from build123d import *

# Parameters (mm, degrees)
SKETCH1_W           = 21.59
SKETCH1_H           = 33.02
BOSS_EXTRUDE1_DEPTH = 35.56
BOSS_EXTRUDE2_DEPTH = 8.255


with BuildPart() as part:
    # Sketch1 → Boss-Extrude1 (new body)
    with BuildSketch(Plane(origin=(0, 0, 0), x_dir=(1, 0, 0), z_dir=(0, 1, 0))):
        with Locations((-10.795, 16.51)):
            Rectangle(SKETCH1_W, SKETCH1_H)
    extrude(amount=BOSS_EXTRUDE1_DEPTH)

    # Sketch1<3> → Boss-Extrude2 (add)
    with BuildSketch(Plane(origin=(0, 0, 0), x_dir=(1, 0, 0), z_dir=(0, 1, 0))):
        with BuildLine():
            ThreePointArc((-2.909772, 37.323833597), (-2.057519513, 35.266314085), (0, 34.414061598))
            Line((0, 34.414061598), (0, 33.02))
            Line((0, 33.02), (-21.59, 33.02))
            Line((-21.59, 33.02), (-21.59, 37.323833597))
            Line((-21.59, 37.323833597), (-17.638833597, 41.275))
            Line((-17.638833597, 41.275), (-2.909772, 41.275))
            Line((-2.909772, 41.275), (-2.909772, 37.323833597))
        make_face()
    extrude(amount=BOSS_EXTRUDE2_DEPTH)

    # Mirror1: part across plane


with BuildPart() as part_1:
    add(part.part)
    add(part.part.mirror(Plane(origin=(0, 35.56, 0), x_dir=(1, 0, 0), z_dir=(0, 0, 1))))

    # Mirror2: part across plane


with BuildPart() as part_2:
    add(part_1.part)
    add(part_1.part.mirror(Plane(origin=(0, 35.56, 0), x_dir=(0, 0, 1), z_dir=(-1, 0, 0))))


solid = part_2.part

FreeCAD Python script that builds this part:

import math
import FreeCAD as App
import Part
import Sketcher
from FreeCAD import Vector
Q = App.Units.Quantity

doc = App.newDocument("Part")
params = doc.addObject("Spreadsheet::Sheet", "Params")
for row, (alias, value) in enumerate([
    ("sketch1_height", "1.3 in"),
    ("sketch1_width", "0.85 in"),
    ("pad1_length", "1.4 in"),
    ("sketch2_width", "0.85 in"),
    ("pad2_length", "0.325 in"),
], start=1):
    params.set(f"A{row}", alias)
    params.set(f"B{row}", "=" + value)
    params.setAlias(f"B{row}", alias)

body = doc.addObject("PartDesign::Body", "Body")

# Sketch on XZ plane
sketch1 = body.newObject("Sketcher::SketchObject", "Sketch")
sketch1.AttachmentSupport = (doc.getObject("XZ_Plane"), [""])
sketch1.MapMode = "FlatFace"
sketch1.addGeometry([
    Part.LineSegment(Vector(-22, -33, 0), Vector(-22, 0, 0)),
    Part.LineSegment(Vector(-22, 0, 0), Vector(0, 0, 0)),
    Part.LineSegment(Vector(0, 0, 0), Vector(0, -33, 0)),
    Part.LineSegment(Vector(0, -33, 0), Vector(-22, -33, 0)),
], False)
sketch1.addConstraint([
    Sketcher.Constraint("Coincident", 0, 2, 1, 1),
    Sketcher.Constraint("Coincident", 1, 2, 2, 1),
    Sketcher.Constraint("Coincident", 2, 2, 3, 1),
    Sketcher.Constraint("Coincident", 3, 2, 0, 1),
    Sketcher.Constraint("Vertical", 0),
    Sketcher.Constraint("Horizontal", 1),
    Sketcher.Constraint("Vertical", 2),
    Sketcher.Constraint("Horizontal", 3),
    Sketcher.Constraint("Coincident", 1, 2, -1, 1),
    Sketcher.Constraint("DistanceY", 0, 1, 0, 2, Q("1.3 in")),
    Sketcher.Constraint("DistanceX", 1, 1, 1, 2, Q("0.85 in")),
])
sketch1.setExpression("Constraints[9]", "Params.sketch1_height")
sketch1.setExpression("Constraints[10]", "Params.sketch1_width")
pad1 = body.newObject("PartDesign::Pad", "Pad")
pad1.Profile = sketch1
pad1.setExpression("Length", "Params.pad1_length")
pad1.Reversed = True

# Sketch on XZ plane
sketch2 = body.newObject("Sketcher::SketchObject", "Sketch001")
sketch2.AttachmentSupport = (doc.getObject("XZ_Plane"), [""])
sketch2.MapMode = "FlatFace"
sketch2.addGeometry([
    Part.ArcOfCircle(Part.Circle(Vector(0, -37.3, 0), Vector(0, 0, 1), 2.9), math.radians(90), math.radians(180)),  # 0
    Part.LineSegment(Vector(-2.9, -37.3, 0), Vector(-2.9, -41.3, 0)),  # 1
    Part.LineSegment(Vector(-2.9, -41.3, 0), Vector(-17.6, -41.3, 0)),  # 2
    Part.LineSegment(Vector(-17.6, -41.3, 0), Vector(-21.6, -37.3, 0)),  # 3
    Part.LineSegment(Vector(-21.6, -37.3, 0), Vector(-21.6, -33, 0)),  # 4
    Part.LineSegment(Vector(-21.6, -33, 0), Vector(0, -33, 0)),  # 5
    Part.LineSegment(Vector(0, -33, 0), Vector(0, -34.4, 0)),  # 6
], False)
sketch2.addConstraint([
    Sketcher.Constraint("Tangent", 0, 2, 1, 1),
    Sketcher.Constraint("Coincident", 1, 2, 2, 1),
    Sketcher.Constraint("Coincident", 2, 2, 3, 1),
    Sketcher.Constraint("Coincident", 3, 2, 4, 1),
    Sketcher.Constraint("Coincident", 4, 2, 5, 1),
    Sketcher.Constraint("Coincident", 5, 2, 6, 1),
    Sketcher.Constraint("Coincident", 6, 2, 0, 1),
    Sketcher.Constraint("Vertical", 1),
    Sketcher.Constraint("Horizontal", 2),
    Sketcher.Constraint("Vertical", 4),
    Sketcher.Constraint("Horizontal", 5),
    Sketcher.Constraint("Vertical", 6),
    Sketcher.Constraint("PointOnObject", 0, 3, -2),
    Sketcher.Constraint("PointOnObject", 5, 2, -2),
    Sketcher.Constraint("Horizontal", 0, 2, 3, 2),
    Sketcher.Constraint("Angle", 3, Q("135 deg")),
    Sketcher.Constraint("DistanceX", 5, 1, 5, 2, Q("0.85 in")),
    Sketcher.Constraint("DistanceY", 4, 2, -1, 1, Q("1.3 in")),
    Sketcher.Constraint("DistanceY", 1, 2, -1, 1, Q("1.625 in")),
    Sketcher.Constraint("Radius", 0, 2.909772),
    Sketcher.Constraint("DistanceX", 2, 2, 2, 1, 14.729062),
])
sketch2.setExpression("Constraints[16]", "Params.sketch2_width")
pad2 = body.newObject("PartDesign::Pad", "Pad001")
pad2.Profile = sketch2
pad2.setExpression("Length", "Params.pad2_length")
pad2.Reversed = True
body2 = doc.addObject("PartDesign::Body", "Body001")
doc.recompute()

body2.BaseFeature = body
doc.recompute()

mirroring = doc.addObject("Part::Mirroring", "Mirroring")
mirroring.Source = body
mirroring.Base = Vector(0, 35.56, 0)
mirroring.Normal = Vector(0, 0, 1)
body3 = doc.addObject("PartDesign::Body", "Body002")
body3.BaseFeature = mirroring
boolean = body2.newObject("PartDesign::Boolean", "Boolean")
boolean.Type = "Fuse"
boolean.addObjects([body3])
doc.recompute()
body4 = doc.addObject("PartDesign::Body", "Body003")
doc.recompute()

body4.BaseFeature = body2
doc.recompute()

mirroring2 = doc.addObject("Part::Mirroring", "Mirroring001")
mirroring2.Source = body2
mirroring2.Base = Vector(0, 35.56, 0)
mirroring2.Normal = Vector(-1, 0, 0)
body5 = doc.addObject("PartDesign::Body", "Body004")
body5.BaseFeature = mirroring2
boolean2 = body4.newObject("PartDesign::Boolean", "Boolean001")
boolean2.Type = "Fuse"
boolean2.addObjects([body5])
doc.recompute()
mirroring.Visibility = False
mirroring2.Visibility = False

doc.recompute()
